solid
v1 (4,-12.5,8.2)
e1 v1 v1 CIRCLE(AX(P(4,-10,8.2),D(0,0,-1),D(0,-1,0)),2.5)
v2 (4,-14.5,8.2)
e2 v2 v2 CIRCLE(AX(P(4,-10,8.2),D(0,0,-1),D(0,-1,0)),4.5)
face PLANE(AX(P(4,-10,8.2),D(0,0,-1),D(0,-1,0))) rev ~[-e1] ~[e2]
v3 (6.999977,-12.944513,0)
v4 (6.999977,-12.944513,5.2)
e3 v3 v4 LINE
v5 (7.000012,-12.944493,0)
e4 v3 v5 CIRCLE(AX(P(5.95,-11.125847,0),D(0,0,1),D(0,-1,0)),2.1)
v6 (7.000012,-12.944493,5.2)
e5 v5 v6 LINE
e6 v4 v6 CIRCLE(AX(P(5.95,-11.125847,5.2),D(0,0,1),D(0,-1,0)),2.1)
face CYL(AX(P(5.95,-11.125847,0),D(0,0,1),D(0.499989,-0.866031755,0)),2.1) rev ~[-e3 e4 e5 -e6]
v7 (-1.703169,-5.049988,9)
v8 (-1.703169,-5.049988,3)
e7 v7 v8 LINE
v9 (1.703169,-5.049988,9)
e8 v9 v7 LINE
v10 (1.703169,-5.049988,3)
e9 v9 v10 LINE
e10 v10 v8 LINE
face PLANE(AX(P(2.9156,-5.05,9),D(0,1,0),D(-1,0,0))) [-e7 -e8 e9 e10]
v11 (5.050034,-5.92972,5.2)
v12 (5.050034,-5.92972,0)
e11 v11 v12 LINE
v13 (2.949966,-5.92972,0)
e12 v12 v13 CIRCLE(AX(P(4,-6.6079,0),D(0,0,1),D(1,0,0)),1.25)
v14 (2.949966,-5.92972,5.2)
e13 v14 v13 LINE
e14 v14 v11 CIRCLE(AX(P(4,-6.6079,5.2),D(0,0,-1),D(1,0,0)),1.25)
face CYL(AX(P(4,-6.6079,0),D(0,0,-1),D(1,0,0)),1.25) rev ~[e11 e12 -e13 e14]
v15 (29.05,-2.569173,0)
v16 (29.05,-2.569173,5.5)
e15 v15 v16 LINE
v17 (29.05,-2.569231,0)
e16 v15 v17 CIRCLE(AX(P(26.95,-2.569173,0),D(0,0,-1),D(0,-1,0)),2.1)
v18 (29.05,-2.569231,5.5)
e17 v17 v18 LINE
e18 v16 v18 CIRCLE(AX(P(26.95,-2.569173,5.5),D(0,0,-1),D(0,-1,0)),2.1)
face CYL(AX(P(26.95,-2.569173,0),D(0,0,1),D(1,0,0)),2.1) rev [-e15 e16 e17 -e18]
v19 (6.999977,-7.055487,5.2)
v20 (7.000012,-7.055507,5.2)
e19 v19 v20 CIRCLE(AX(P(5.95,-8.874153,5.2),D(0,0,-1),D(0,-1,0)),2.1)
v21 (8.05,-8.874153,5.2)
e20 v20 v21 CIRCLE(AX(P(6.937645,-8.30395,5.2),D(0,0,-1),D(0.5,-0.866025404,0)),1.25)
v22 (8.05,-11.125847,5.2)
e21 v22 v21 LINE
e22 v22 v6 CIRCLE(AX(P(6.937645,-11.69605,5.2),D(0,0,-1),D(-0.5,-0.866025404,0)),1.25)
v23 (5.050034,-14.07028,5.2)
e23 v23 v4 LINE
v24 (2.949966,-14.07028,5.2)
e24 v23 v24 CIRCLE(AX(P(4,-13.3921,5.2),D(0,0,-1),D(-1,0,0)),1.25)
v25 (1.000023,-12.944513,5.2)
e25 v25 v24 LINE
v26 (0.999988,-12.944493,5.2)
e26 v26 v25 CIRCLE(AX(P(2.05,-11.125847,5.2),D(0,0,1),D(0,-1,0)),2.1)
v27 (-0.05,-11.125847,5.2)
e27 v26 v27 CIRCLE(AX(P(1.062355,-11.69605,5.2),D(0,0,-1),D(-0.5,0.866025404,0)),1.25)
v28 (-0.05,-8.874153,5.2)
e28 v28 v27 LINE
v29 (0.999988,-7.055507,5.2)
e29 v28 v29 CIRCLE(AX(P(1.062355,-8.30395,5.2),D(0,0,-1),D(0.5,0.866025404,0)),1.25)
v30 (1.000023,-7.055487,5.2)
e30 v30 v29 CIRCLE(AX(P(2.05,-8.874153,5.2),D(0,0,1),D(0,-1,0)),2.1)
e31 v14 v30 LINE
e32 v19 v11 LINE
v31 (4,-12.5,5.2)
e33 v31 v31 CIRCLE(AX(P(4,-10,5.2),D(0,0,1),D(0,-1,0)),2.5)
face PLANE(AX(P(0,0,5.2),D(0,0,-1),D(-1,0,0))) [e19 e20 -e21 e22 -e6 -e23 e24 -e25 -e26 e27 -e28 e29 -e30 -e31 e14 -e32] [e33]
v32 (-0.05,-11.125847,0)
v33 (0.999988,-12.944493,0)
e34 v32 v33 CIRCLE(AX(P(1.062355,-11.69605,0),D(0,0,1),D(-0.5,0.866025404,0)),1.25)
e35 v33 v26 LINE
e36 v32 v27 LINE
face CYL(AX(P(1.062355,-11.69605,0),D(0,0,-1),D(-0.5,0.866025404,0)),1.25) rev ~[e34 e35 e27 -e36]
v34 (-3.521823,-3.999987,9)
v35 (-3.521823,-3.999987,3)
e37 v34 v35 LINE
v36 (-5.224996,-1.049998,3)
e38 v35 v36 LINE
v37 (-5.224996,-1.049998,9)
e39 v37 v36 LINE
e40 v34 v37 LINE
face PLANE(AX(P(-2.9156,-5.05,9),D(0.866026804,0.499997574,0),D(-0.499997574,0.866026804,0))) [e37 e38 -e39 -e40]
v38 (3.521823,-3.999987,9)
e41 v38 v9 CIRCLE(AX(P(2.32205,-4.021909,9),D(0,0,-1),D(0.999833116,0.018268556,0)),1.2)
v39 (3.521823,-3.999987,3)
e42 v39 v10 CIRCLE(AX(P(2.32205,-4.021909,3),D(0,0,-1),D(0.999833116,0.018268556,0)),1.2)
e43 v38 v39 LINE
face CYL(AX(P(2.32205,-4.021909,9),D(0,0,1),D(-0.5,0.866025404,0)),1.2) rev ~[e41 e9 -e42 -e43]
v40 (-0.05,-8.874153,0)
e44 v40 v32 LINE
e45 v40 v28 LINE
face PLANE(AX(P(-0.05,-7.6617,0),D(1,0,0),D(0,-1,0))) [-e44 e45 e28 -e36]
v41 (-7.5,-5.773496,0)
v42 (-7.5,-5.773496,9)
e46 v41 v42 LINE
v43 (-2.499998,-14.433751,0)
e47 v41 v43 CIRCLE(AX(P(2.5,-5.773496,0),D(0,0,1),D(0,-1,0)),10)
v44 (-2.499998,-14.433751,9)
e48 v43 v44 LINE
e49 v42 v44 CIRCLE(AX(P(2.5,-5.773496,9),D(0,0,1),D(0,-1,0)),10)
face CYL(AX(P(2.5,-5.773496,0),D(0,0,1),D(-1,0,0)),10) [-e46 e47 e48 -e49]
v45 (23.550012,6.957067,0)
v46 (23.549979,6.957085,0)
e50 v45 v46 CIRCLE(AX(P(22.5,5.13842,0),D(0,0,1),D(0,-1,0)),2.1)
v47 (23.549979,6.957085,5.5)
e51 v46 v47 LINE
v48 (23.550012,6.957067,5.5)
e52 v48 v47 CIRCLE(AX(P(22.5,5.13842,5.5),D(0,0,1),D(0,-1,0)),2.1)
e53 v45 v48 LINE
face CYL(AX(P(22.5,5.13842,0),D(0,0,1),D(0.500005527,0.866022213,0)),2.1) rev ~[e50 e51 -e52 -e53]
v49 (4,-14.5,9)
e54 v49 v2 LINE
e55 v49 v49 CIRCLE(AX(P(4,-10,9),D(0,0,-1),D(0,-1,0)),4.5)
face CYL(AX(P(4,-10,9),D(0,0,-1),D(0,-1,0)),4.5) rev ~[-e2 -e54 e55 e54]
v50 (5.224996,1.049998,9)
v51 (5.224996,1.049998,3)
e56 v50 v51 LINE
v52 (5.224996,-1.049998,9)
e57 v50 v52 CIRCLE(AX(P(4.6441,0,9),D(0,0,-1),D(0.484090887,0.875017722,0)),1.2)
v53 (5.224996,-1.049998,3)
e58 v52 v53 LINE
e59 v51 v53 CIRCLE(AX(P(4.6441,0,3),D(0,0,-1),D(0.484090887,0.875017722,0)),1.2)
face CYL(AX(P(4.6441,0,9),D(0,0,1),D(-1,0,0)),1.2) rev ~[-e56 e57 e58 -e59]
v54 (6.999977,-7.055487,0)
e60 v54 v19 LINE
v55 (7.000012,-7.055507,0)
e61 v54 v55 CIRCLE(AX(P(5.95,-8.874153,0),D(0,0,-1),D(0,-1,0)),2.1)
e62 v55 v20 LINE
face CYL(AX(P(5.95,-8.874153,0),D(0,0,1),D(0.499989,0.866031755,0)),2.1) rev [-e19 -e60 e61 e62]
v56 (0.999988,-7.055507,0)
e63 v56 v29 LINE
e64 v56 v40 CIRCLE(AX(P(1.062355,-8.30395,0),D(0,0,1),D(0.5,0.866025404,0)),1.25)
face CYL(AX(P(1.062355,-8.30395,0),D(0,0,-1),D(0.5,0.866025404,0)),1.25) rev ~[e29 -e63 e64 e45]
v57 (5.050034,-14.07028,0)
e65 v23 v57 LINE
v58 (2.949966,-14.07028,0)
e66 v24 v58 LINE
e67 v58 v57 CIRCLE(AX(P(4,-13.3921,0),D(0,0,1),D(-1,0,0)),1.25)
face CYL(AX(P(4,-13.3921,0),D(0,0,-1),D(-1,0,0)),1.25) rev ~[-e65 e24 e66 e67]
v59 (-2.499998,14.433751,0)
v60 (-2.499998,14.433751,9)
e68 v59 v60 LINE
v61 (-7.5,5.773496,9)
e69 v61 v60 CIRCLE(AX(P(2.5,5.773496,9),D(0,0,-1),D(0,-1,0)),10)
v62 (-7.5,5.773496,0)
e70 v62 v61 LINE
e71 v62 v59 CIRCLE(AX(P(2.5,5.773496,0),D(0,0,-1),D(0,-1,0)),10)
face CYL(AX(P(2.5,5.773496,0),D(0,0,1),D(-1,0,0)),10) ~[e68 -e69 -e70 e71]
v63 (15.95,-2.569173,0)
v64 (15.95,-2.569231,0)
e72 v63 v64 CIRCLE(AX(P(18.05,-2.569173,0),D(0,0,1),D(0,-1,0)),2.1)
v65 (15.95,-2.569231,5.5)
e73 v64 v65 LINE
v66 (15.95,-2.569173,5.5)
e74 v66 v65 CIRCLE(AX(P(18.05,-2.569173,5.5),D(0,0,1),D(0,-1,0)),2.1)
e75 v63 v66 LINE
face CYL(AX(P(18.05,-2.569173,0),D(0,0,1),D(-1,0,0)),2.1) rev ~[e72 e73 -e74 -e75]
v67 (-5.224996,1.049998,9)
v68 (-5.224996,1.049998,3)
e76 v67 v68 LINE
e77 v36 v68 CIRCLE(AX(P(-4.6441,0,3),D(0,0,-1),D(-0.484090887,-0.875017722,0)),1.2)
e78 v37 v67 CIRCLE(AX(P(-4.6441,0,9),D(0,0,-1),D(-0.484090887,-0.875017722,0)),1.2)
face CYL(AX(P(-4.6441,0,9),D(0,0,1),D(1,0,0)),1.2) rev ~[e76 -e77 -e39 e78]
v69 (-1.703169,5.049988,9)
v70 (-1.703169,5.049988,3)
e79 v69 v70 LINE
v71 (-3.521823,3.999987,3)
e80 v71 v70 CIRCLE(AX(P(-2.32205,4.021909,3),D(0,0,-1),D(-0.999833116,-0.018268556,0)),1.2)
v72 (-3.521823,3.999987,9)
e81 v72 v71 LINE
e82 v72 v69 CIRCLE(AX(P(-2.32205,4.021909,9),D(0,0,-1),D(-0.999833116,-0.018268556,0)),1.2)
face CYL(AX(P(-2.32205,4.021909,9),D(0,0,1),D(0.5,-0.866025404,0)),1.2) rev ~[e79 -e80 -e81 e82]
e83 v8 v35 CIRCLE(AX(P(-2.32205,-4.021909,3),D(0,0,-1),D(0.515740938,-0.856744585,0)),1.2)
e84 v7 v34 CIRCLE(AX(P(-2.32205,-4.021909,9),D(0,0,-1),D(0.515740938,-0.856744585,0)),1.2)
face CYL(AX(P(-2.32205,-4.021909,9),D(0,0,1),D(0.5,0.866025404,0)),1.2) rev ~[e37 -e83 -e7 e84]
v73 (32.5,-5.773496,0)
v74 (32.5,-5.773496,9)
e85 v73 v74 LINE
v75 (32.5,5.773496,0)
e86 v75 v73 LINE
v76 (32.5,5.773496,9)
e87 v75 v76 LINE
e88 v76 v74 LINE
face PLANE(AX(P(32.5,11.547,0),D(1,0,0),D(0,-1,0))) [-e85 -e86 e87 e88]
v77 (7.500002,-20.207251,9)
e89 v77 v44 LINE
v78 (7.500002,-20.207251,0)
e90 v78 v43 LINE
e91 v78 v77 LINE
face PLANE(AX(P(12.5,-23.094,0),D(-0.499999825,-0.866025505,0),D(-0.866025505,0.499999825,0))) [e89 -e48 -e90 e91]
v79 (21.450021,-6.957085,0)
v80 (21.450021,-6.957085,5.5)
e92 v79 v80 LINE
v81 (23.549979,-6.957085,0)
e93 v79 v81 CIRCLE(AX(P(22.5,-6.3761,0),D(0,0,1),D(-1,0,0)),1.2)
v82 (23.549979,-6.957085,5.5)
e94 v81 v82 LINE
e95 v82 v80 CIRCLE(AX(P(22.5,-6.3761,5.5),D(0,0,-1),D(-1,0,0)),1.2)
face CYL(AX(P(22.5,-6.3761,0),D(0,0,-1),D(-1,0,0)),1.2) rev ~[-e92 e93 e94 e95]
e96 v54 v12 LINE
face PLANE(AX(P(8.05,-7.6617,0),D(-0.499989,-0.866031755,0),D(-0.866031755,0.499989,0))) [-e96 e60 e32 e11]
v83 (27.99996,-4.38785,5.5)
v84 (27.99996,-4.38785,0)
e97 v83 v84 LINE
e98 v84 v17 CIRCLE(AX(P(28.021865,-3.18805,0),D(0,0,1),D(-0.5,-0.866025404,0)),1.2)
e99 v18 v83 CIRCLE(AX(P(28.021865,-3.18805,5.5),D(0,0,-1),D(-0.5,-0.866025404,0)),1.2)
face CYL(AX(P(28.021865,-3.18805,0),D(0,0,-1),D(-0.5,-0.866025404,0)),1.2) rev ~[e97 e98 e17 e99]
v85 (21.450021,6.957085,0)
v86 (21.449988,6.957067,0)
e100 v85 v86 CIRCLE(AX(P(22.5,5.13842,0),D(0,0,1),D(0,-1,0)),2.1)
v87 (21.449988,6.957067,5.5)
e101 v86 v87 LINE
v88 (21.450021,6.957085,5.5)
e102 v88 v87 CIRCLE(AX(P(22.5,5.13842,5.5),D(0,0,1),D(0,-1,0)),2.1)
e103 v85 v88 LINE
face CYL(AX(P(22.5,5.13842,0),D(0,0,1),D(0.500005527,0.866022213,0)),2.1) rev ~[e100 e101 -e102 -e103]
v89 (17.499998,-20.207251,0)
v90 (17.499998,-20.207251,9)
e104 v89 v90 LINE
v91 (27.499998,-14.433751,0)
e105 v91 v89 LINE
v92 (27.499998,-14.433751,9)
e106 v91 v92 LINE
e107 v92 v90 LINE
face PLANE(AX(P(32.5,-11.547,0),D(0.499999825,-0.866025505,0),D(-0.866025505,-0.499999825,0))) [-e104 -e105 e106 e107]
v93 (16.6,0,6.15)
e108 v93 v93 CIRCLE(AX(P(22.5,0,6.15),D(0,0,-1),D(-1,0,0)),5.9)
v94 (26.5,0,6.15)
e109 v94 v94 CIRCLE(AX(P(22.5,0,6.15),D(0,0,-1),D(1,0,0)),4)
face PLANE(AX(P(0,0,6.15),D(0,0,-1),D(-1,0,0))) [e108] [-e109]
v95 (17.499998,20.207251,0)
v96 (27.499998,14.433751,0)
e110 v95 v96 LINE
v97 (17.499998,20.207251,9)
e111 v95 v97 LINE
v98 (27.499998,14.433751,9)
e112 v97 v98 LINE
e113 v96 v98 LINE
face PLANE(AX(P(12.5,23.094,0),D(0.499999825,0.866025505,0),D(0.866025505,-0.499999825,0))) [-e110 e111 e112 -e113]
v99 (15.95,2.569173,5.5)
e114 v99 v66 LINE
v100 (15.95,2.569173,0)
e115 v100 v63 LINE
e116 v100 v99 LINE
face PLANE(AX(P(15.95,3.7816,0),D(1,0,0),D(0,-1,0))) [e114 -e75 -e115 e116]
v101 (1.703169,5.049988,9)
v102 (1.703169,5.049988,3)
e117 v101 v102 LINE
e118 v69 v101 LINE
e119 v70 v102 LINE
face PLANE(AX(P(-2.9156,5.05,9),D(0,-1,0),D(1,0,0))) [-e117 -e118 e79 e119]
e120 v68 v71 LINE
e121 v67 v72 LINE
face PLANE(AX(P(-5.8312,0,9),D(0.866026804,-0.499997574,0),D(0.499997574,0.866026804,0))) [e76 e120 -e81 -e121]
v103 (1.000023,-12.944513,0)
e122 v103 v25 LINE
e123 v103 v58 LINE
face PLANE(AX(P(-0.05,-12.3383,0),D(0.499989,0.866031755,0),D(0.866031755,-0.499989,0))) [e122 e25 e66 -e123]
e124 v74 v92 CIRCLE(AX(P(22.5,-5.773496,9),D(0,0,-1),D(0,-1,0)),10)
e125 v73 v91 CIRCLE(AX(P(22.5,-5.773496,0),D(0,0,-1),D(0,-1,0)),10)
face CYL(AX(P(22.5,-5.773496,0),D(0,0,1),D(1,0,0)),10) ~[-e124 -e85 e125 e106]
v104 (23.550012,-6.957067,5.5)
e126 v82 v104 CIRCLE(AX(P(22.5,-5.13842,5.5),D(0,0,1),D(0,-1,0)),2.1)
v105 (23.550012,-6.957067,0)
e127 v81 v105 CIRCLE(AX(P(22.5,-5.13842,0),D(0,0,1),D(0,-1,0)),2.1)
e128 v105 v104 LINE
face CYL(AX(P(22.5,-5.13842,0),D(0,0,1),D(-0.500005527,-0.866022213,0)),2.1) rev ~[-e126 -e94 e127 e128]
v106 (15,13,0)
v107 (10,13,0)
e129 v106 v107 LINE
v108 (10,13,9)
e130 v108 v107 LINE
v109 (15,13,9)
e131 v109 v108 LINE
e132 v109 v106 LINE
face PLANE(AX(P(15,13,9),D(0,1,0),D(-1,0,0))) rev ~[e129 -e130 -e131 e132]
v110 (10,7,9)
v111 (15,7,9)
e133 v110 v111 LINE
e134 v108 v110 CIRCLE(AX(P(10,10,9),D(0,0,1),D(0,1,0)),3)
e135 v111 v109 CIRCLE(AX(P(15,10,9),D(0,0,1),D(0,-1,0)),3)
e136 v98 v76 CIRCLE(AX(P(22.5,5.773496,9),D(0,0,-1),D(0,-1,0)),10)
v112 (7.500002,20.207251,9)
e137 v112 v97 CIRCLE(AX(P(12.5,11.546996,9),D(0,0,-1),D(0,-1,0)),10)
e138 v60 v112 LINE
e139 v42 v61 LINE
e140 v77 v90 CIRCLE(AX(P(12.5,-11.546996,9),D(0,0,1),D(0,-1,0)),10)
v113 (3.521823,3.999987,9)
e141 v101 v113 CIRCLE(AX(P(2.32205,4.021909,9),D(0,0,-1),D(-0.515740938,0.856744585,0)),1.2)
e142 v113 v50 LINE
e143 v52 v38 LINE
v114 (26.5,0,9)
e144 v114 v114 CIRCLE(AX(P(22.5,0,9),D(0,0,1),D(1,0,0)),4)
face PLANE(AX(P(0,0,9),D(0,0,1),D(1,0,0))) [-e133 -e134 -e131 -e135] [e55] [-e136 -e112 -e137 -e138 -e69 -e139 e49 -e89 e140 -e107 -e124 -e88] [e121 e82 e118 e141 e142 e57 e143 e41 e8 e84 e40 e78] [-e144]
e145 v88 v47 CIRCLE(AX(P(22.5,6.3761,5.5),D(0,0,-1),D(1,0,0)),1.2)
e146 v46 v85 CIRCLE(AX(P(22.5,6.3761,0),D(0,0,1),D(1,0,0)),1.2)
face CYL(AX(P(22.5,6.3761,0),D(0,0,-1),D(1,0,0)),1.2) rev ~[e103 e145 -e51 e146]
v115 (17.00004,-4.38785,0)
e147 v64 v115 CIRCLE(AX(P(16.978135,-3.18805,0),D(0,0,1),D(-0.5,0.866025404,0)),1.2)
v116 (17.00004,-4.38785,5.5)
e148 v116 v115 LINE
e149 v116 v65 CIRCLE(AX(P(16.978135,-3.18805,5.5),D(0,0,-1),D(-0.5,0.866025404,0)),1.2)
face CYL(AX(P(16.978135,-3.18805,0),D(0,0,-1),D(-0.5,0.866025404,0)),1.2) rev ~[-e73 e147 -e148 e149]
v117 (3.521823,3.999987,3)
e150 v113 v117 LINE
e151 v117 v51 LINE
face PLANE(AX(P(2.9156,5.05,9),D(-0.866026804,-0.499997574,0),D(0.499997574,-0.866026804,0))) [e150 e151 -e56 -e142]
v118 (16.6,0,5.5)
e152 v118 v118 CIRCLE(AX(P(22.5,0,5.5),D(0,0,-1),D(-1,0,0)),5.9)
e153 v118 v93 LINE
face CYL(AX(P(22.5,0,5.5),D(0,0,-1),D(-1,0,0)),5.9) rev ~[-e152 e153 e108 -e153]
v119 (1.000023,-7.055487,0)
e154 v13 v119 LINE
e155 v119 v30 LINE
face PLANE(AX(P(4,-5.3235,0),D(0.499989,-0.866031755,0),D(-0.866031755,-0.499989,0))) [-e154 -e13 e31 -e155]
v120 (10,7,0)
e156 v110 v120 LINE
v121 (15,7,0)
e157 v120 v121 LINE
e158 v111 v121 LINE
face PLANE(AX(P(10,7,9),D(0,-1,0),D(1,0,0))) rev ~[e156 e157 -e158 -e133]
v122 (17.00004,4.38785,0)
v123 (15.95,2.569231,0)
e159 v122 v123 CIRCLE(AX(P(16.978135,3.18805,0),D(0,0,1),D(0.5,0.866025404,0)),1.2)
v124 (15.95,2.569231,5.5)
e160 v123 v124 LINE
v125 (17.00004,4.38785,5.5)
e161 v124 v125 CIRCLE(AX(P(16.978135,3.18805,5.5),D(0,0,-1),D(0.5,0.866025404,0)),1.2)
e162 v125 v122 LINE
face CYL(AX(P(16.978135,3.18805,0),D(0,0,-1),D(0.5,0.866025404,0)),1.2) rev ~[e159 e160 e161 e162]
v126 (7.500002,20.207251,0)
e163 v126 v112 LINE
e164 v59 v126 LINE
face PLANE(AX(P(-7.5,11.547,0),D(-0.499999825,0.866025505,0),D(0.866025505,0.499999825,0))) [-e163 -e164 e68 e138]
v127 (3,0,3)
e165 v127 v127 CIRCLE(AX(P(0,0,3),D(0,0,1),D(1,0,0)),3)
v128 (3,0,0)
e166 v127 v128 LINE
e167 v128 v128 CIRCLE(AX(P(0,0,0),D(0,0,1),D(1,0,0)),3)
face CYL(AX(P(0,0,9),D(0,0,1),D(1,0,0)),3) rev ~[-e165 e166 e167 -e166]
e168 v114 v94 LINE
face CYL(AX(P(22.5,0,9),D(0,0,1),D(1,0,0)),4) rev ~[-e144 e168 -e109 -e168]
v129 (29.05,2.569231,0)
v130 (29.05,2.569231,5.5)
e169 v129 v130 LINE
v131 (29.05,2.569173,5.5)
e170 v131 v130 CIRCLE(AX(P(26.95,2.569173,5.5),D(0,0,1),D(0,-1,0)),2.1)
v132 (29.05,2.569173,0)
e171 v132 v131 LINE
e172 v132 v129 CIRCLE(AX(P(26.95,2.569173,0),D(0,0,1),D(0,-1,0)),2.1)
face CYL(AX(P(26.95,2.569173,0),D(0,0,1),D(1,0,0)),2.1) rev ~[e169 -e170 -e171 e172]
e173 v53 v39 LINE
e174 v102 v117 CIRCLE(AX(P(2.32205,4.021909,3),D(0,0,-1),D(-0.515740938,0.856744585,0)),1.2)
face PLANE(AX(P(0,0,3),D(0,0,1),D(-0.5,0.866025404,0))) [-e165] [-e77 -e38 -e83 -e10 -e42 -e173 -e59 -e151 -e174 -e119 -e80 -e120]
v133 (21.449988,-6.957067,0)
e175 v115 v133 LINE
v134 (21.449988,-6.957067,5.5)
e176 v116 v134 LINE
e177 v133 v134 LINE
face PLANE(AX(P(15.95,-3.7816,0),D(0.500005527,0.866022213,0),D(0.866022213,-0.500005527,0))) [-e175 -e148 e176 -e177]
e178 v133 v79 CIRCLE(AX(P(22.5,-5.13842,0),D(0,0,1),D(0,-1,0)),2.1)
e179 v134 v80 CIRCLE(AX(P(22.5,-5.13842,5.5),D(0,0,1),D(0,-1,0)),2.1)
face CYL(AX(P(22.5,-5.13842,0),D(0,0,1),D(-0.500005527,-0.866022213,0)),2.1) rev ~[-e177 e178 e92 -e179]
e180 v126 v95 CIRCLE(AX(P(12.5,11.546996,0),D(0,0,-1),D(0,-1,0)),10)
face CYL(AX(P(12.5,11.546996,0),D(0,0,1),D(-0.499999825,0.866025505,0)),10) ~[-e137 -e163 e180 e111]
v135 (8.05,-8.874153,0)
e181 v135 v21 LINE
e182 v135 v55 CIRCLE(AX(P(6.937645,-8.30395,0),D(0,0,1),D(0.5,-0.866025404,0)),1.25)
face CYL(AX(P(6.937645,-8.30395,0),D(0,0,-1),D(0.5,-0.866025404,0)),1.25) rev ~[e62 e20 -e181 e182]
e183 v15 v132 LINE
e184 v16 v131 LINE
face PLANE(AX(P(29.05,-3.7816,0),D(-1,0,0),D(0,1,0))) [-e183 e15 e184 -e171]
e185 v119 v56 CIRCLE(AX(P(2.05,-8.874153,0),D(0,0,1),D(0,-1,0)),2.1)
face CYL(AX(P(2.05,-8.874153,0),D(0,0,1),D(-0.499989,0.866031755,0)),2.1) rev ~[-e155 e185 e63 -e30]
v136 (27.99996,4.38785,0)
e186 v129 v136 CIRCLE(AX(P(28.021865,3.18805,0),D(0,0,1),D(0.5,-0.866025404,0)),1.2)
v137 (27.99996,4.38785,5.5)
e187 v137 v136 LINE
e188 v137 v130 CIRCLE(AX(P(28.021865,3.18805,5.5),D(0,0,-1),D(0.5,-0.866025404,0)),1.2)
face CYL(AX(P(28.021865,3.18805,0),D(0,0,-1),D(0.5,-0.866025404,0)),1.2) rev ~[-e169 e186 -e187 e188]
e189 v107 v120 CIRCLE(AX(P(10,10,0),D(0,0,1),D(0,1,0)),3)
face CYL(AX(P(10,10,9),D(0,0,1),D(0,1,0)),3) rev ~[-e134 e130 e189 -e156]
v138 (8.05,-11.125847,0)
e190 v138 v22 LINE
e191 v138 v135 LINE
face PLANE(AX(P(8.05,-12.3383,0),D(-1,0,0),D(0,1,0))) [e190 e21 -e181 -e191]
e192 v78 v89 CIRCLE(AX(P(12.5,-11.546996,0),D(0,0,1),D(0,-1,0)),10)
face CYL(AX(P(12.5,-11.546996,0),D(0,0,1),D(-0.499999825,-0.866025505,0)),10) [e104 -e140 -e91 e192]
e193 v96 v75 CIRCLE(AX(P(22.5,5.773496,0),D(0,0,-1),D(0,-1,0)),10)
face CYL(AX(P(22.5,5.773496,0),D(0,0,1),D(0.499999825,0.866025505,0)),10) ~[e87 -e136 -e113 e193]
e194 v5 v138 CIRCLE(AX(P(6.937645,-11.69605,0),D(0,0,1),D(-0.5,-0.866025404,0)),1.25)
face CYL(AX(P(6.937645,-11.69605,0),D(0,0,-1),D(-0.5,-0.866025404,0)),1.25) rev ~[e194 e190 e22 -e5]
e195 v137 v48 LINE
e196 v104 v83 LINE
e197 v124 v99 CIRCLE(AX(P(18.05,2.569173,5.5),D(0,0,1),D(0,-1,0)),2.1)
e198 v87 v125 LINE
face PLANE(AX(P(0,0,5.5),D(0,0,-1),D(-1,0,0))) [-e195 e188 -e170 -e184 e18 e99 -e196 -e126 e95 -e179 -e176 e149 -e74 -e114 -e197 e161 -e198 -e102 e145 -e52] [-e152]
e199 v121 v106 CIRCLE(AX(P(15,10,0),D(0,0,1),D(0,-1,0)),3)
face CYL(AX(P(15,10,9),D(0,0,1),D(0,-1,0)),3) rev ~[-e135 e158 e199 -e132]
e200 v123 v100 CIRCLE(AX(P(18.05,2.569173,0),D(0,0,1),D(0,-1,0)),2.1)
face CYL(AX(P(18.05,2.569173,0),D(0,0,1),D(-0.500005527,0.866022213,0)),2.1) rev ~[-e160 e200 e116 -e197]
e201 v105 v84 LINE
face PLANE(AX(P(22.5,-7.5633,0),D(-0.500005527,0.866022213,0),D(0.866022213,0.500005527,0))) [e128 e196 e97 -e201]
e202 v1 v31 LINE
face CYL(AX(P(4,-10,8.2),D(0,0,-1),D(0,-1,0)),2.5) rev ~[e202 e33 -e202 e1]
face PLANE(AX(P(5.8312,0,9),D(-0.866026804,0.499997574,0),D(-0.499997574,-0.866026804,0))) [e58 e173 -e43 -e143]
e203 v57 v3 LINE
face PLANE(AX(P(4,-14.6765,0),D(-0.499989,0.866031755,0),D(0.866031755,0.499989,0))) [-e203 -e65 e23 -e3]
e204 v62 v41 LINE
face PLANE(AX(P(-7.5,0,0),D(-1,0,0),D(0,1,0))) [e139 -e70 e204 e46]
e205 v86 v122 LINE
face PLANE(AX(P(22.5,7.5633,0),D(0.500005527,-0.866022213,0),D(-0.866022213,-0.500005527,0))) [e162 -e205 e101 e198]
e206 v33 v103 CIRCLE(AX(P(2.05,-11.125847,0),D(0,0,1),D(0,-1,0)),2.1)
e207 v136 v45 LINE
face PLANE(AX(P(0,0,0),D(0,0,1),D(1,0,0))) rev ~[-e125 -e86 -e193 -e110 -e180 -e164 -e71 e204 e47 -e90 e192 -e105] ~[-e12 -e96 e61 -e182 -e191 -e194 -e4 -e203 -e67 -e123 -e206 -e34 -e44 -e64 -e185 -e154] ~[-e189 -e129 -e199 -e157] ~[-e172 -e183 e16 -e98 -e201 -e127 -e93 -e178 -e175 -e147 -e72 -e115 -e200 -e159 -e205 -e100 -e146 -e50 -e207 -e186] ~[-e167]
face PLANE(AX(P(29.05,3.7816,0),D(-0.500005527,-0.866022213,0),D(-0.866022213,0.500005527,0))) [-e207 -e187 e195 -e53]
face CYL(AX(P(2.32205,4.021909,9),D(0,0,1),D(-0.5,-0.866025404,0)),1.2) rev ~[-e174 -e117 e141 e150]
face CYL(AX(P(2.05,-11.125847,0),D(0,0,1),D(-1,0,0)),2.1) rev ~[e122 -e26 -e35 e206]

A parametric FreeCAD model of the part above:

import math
import FreeCAD as App
import Part
import Sketcher
from FreeCAD import Vector
Q = App.Units.Quantity


def edges_at(feature, points):
    """Names of the edges that pass closest to the given points."""
    edges = feature.Shape.Edges
    near = lambda p: min(range(len(edges)), key=lambda i: edges[i].distToShape(Part.Vertex(*p))[0])
    return sorted({f"Edge{near(p) + 1}" for p in points})


def add_polygon(sketch, points):
    """Adds a closed chain of lines whose ends are joined by coincident constraints."""
    first, n = sketch.GeometryCount, len(points)
    for a, b in zip(points, points[1:] + points[:1]):
        sketch.addGeometry(Part.LineSegment(App.Vector(*a, 0), App.Vector(*b, 0)), False)
    for i in range(n):
        sketch.addConstraint(Sketcher.Constraint("Coincident", first + i, 2, first + (i + 1) % n, 1))

doc = App.newDocument("Part")
params = doc.addObject("Spreadsheet::Sheet", "Params")
for row, (alias, value) in enumerate([
    ("sketch1_diameter", "15 mm"),
    ("pad1_length", "9 mm"),
    ("sketch2_diameter", "6 mm"),
    ("pocket2_length", "6 mm"),
    ("fillet_radius", "2.1 mm"),
    ("sketch4_diameter", "2.4 mm"),
    ("pocket3_length", "6 mm"),
    ("sketch5_diameter", "15 mm"),
    ("pad2_length", "9 mm"),
    ("fillet2_radius", "10 mm"),
    ("sketch6_diameter", "5 mm"),
    ("hole_diameter", "5 mm"),
    ("hole_cbore_diameter", "9 mm"),
    ("hole_cbore_depth", "0.8 mm"),
    ("sketch7_diameter", "5 mm"),
    ("pocket4_length", "5.2 mm"),
    ("fillet3_radius", "2.1 mm"),
    ("sketch8_diameter", "2.5 mm"),
    ("pocket5_length", "5.2 mm"),
    ("sketch9_diameter", "8 mm"),
    ("sketch10_diameter", "8 mm"),
    ("pocket7_length", "5.5 mm"),
    ("fillet4_radius", "2.1 mm"),
    ("sketch11_diameter", "2.4 mm"),
    ("pocket8_length", "5.5 mm"),
    ("sketch12_diameter", "11.8 mm"),
    ("sketch12_diameter2", "8 mm"),
    ("pocket9_length", "0.65 mm"),
    ("sketch13_radius", "3 mm"),
    ("sketch13_width", "5 mm"),
    ("pocket10_length", "10 mm"),
], start=1):
    params.set(f"A{row}", alias)
    params.set(f"B{row}", "=" + value)
    params.setAlias(f"B{row}", alias)

body = doc.addObject("PartDesign::Body", "Body")

sketch1 = body.newObject("Sketcher::SketchObject", "Sketch")
sketch1.AttachmentSupport = (doc.getObject("XY_Plane"), [""])
sketch1.MapMode = "FlatFace"
sketch1.addGeometry(Part.Circle(Vector(0, 0, 0), Vector(0, 0, 1), 8), False)
sketch1.addConstraint([
    Sketcher.Constraint("Coincident", 0, 3, -1, 1),
    Sketcher.Constraint("Diameter", 0, 15.0),
])
sketch1.setExpression("Constraints[1]", "Params.sketch1_diameter")
pad1 = body.newObject("PartDesign::Pad", "Pad")
pad1.Profile = sketch1
pad1.setExpression("Length", "Params.pad1_length")

sketch2 = body.newObject("Sketcher::SketchObject", "Sketch001")
sketch2.AttachmentSupport = (doc.getObject("XY_Plane"), [""])
sketch2.MapMode = "FlatFace"
sketch2.AttachmentOffset = App.Placement(Vector(0, 0, 9), App.Rotation())
sketch2.addGeometry(Part.Circle(Vector(0, 0, 0), Vector(0, 0, 1), 3), False)
sketch2.addConstraint([
    Sketcher.Constraint("Coincident", 0, 3, -1, 1),
    Sketcher.Constraint("Diameter", 0, 6.0),
])
sketch2.setExpression("Constraints[1]", "Params.sketch2_diameter")
pocket1 = body.newObject("PartDesign::Pocket", "Pocket")
pocket1.Profile = sketch2
pocket1.Type = "ThroughAll"

sketch3 = body.newObject("Sketcher::SketchObject", "Sketch002")
sketch3.AttachmentSupport = (doc.getObject("XY_Plane"), [""])
sketch3.MapMode = "FlatFace"
sketch3.AttachmentOffset = App.Placement(Vector(0, 0, 9), App.Rotation())
add_polygon(sketch3, [(-6, 0), (-3, -5), (3, -5), (6, 0), (3, 5), (-3, 5)])
sketch3.addConstraint([
    Sketcher.Constraint("Horizontal", 1),
    Sketcher.Constraint("Horizontal", 4),
    Sketcher.Constraint("Symmetric", 0, 2, 3, 2, -1, 1),
    Sketcher.Constraint("Symmetric", 2, 2, 5, 2, -1, 1),
    Sketcher.Constraint("PointOnObject", 2, 2, -1),
    Sketcher.Constraint("Parallel", 2, 5),
    Sketcher.Constraint("Vertical", 1, 2, 3, 2),
    Sketcher.Constraint("DistanceY", 1, 2, 3, 2, 10.1),
    Sketcher.Constraint("Angle", 0, Q("-60.0002 deg")),
    Sketcher.Constraint("DistanceX", 1, 1, 1, 2, 5.8312),
])
pocket2 = body.newObject("PartDesign::Pocket", "Pocket001")
pocket2.Profile = sketch3
pocket2.setExpression("Length", "Params.pocket2_length")
doc.recompute()

fillet = body.newObject("PartDesign::Fillet", "Fillet")
fillet.Base = (pocket2, edges_at(pocket2, [
    (5.831, 0, 6),
    (2.916, 5.05, 6),
    (-2.916, 5.05, 6),
    (-5.831, 0, 6),
    (-2.916, -5.05, 6),
    (2.916, -5.05, 6),
]))
fillet.setExpression("Radius", "Params.fillet_radius")

sketch4 = body.newObject("Sketcher::SketchObject", "Sketch003")
sketch4.AttachmentSupport = (doc.getObject("XY_Plane"), [""])
sketch4.MapMode = "FlatFace"
sketch4.AttachmentOffset = App.Placement(Vector(0, 0, 9), App.Rotation())
sketch4.addGeometry(Part.Circle(Vector(-4.6, 0, 0), Vector(0, 0, 1), 1.2), False)
sketch4.addConstraint([
    Sketcher.Constraint("PointOnObject", 0, 3, -1),
    Sketcher.Constraint("Diameter", 0, 2.4),
    Sketcher.Constraint("DistanceX", 0, 3, -1, 1, 4.644),
])
sketch4.setExpression("Constraints[1]", "Params.sketch4_diameter")
pocket3 = body.newObject("PartDesign::Pocket", "Pocket002")
pocket3.Profile = sketch4
pocket3.setExpression("Length", "Params.pocket3_length")
doc.recompute()

polarpattern = body.newObject("PartDesign::PolarPattern", "PolarPattern")
polarpattern.Originals = [pocket3]
polarpattern.Axis = (doc.getObject("Z_Axis"), [""])
polarpattern.Angle = 360
polarpattern.Occurrences = 6
body.Tip = polarpattern

sketch5 = body.newObject("Sketcher::SketchObject", "Sketch004")
sketch5.AttachmentSupport = (doc.getObject("XY_Plane"), [""])
sketch5.MapMode = "FlatFace"
add_polygon(sketch5, [(-8, 12), (-8, 0), (-8, -12), (12, -23), (32, -12), (32, 12), (12, 23)])
sketch5.addGeometry(Part.Circle(Vector(0, 0, 0), Vector(0, 0, 1), 8), False)
sketch5.addConstraint([
    Sketcher.Constraint("Vertical", 0),
    Sketcher.Constraint("Vertical", 1),
    Sketcher.Constraint("Vertical", 4),
    Sketcher.Constraint("Coincident", 7, 3, -1, 1),
    Sketcher.Constraint("Symmetric", 2, 2, 5, 2, -1),
    Sketcher.Constraint("PointOnObject", 0, 2, -1),
    Sketcher.Constraint("Parallel", 2, 5),
    Sketcher.Constraint("Parallel", 3, 6),
    Sketcher.Constraint("Horizontal", 1, 2, 3, 2),
    Sketcher.Constraint("Horizontal", 4, 2, 6, 2),
    Sketcher.Constraint("Diameter", 7, 15.0),
    Sketcher.Constraint("DistanceX", 1, 2, 3, 2, 40.0),
    Sketcher.Constraint("Angle", 2, Q("-30 deg")),
    Sketcher.Constraint("DistanceX", 0, 2, -1, 1, 7.5),
    Sketcher.Constraint("DistanceY", 0, 2, 0, 1, 11.547),
])
sketch5.setExpression("Constraints[17]", "Params.sketch5_diameter")
pad2 = body.newObject("PartDesign::Pad", "Pad001")
pad2.Profile = sketch5
pad2.setExpression("Length", "Params.pad2_length")
doc.recompute()

fillet2 = body.newObject("PartDesign::Fillet", "Fillet001")
fillet2.Base = (pad2, edges_at(pad2, [
    (-7.5, -11.547, 4.5),
    (12.5, -23.094, 4.5),
    (32.5, -11.547, 4.5),
    (-7.5, 11.547, 4.5),
    (12.5, 23.094, 4.5),
    (32.5, 11.547, 4.5),
]))
fillet2.setExpression("Radius", "Params.fillet2_radius")

sketch6 = body.newObject("Sketcher::SketchObject", "Sketch005")
sketch6.AttachmentSupport = (doc.getObject("XY_Plane"), [""])
sketch6.MapMode = "FlatFace"
sketch6.AttachmentOffset = App.Placement(Vector(0, 0, 9), App.Rotation())
sketch6.addGeometry(Part.Circle(Vector(4, -10, 0), Vector(0, 0, 1), 2.5), False)
sketch6.addConstraint([
    Sketcher.Constraint("Diameter", 0, 5.0),
    Sketcher.Constraint("DistanceX", -1, 1, 0, 3, 4.0),
    Sketcher.Constraint("DistanceY", 0, 3, -1, 1, 10.0),
])
sketch6.setExpression("Constraints[0]", "Params.sketch6_diameter")
doc.recompute()
hole = body.newObject("PartDesign::Hole", "Hole")
hole.Profile = sketch6
hole.ThreadType = "None"
hole.setExpression("Diameter", "Params.hole_diameter")
hole.DepthType = "ThroughAll"
hole.HoleCutType = "Counterbore"
hole.setExpression("HoleCutDiameter", "Params.hole_cbore_diameter")
hole.setExpression("HoleCutDepth", "Params.hole_cbore_depth")

sketch7 = body.newObject("Sketcher::SketchObject", "Sketch006")
sketch7.AttachmentSupport = (doc.getObject("XY_Plane"), [""])
sketch7.MapMode = "FlatFace"
add_polygon(sketch7, [(4, -5.3), (8.1, -7.7), (8.1, -12.3), (4, -14.7), (-0.1, -12.3), (-0.1, -7.7)])
sketch7.addGeometry(Part.Circle(Vector(4, -10, 0), Vector(0, 0, 1), 2.5), False)
sketch7.addConstraint([
    Sketcher.Constraint("Vertical", 1),
    Sketcher.Constraint("Vertical", 4),
    Sketcher.Constraint("Parallel", 0, 3),
    Sketcher.Constraint("Parallel", 2, 5),
    Sketcher.Constraint("Horizontal", 1, 2, 3, 2),
    Sketcher.Constraint("Horizontal", 0, 2, 4, 2),
    Sketcher.Constraint("Vertical", 6, 3, 2, 2),
    Sketcher.Constraint("Vertical", 2, 2, 5, 2),
    Sketcher.Constraint("Diameter", 6, 5.0),
    Sketcher.Constraint("DistanceX", 3, 2, 1, 2, 8.1),
    Sketcher.Constraint("Angle", 0, Q("-29.9993 deg")),
    Sketcher.Constraint("DistanceX", -1, 1, 6, 3, 4.0),
    Sketcher.Constraint("DistanceY", 6, 3, -1, 1, 10.0),
    Sketcher.Constraint("DistanceY", 1, 2, 1, 1, 4.6766),
    Sketcher.Constraint("DistanceY", 0, 2, -1, 1, 7.6617),
])
sketch7.setExpression("Constraints[14]", "Params.sketch7_diameter")
pocket4 = body.newObject("PartDesign::Pocket", "Pocket003")
pocket4.Profile = sketch7
pocket4.setExpression("Length", "Params.pocket4_length")
pocket4.Reversed = True
doc.recompute()

fillet3 = body.newObject("PartDesign::Fillet", "Fillet002")
fillet3.Base = (pocket4, edges_at(pocket4, [
    (4, -14.677, 2.6),
    (-0.05, -12.338, 2.6),
    (-0.05, -7.662, 2.6),
    (4, -5.324, 2.6),
    (8.05, -7.662, 2.6),
    (8.05, -12.338, 2.6),
]))
fillet3.setExpression("Radius", "Params.fillet3_radius")

sketch8 = body.newObject("Sketcher::SketchObject", "Sketch007")
sketch8.AttachmentSupport = (doc.getObject("XY_Plane"), [""])
sketch8.MapMode = "FlatFace"
sketch8.addGeometry(Part.Circle(Vector(4, -13.4, 0), Vector(0, 0, 1), 1.2), False)
sketch8.addConstraint([
    Sketcher.Constraint("Diameter", 0, 2.5),
    Sketcher.Constraint("DistanceX", -1, 1, 0, 3, 4.0),
    Sketcher.Constraint("DistanceY", 0, 3, -1, 1, 13.392),
])
sketch8.setExpression("Constraints[0]", "Params.sketch8_diameter")
pocket5 = body.newObject("PartDesign::Pocket", "Pocket004")
pocket5.Profile = sketch8
pocket5.setExpression("Length", "Params.pocket5_length")
pocket5.Reversed = True
doc.recompute()

datumline = body.newObject("PartDesign::Line", "DatumLine")
datumline.Placement = App.Placement(Vector(4, -10, 0), App.Rotation(Vector(0, 0, 1), Vector(0, 0, 1)))
polarpattern2 = body.newObject("PartDesign::PolarPattern", "PolarPattern001")
polarpattern2.Originals = [pocket5]
polarpattern2.Axis = (datumline, [""])
polarpattern2.Angle = 360
polarpattern2.Occurrences = 6
body.Tip = polarpattern2

sketch9 = body.newObject("Sketcher::SketchObject", "Sketch008")
sketch9.AttachmentSupport = (doc.getObject("XY_Plane"), [""])
sketch9.MapMode = "FlatFace"
sketch9.AttachmentOffset = App.Placement(Vector(0, 0, 9), App.Rotation())
sketch9.addGeometry(Part.Circle(Vector(22.5, 0, 0), Vector(0, 0, 1), 4), False)
sketch9.addConstraint([
    Sketcher.Constraint("PointOnObject", 0, 3, -1),
    Sketcher.Constraint("Diameter", 0, 8.0),
    Sketcher.Constraint("DistanceX", -1, 1, 0, 3, 22.5),
])
sketch9.setExpression("Constraints[1]", "Params.sketch9_diameter")
pocket6 = body.newObject("PartDesign::Pocket", "Pocket005")
pocket6.Profile = sketch9
pocket6.Type = "ThroughAll"

sketch10 = body.newObject("Sketcher::SketchObject", "Sketch009")
sketch10.AttachmentSupport = (doc.getObject("XY_Plane"), [""])
sketch10.MapMode = "FlatFace"
add_polygon(sketch10, [(29.1, 3.8), (29.1, -3.8), (22.5, -7.6), (15.9, -3.8), (15.9, 3.8), (22.5, 7.6)])
sketch10.addGeometry(Part.Circle(Vector(22.5, 0, 0), Vector(0, 0, 1), 4), False)
sketch10.addConstraint([
    Sketcher.Constraint("Vertical", 0),
    Sketcher.Constraint("Vertical", 3),
    Sketcher.Constraint("Symmetric", 1, 2, 4, 2, -1),
    Sketcher.Constraint("PointOnObject", 6, 3, -1),
    Sketcher.Constraint("Parallel", 1, 4),
    Sketcher.Constraint("Parallel", 2, 5),
    Sketcher.Constraint("Horizontal", 0, 2, 2, 2),
    Sketcher.Constraint("Horizontal", 3, 2, 5, 2),
    Sketcher.Constraint("Vertical", 6, 3, 1, 2),
    Sketcher.Constraint("Diameter", 6, 8.0),
    Sketcher.Constraint("DistanceX", 2, 2, 0, 2, 13.1),
    Sketcher.Constraint("Angle", 1, Q("-149.9996 deg")),
    Sketcher.Constraint("DistanceX", -1, 1, 6, 3, 22.5),
    Sketcher.Constraint("DistanceY", 0, 2, 0, 1, 7.5632),
])
sketch10.setExpression("Constraints[15]", "Params.sketch10_diameter")
pocket7 = body.newObject("PartDesign::Pocket", "Pocket006")
pocket7.Profile = sketch10
pocket7.setExpression("Length", "Params.pocket7_length")
pocket7.Reversed = True
doc.recompute()

fillet4 = body.newObject("PartDesign::Fillet", "Fillet003")
fillet4.Base = (pocket7, edges_at(pocket7, [
    (22.5, -7.563, 2.75),
    (15.95, -3.782, 2.75),
    (15.95, 3.782, 2.75),
    (22.5, 7.563, 2.75),
    (29.05, 3.782, 2.75),
    (29.05, -3.782, 2.75),
]))
fillet4.setExpression("Radius", "Params.fillet4_radius")

sketch11 = body.newObject("Sketcher::SketchObject", "Sketch010")
sketch11.AttachmentSupport = (doc.getObject("XY_Plane"), [""])
sketch11.MapMode = "FlatFace"
sketch11.addGeometry(Part.Circle(Vector(22.5, -6.4, 0), Vector(0, 0, 1), 1.2), False)
sketch11.addConstraint([
    Sketcher.Constraint("Diameter", 0, 2.4),
    Sketcher.Constraint("DistanceX", -1, 1, 0, 3, 22.5),
    Sketcher.Constraint("DistanceY", 0, 3, -1, 1, 6.376),
])
sketch11.setExpression("Constraints[0]", "Params.sketch11_diameter")
pocket8 = body.newObject("PartDesign::Pocket", "Pocket007")
pocket8.Profile = sketch11
pocket8.setExpression("Length", "Params.pocket8_length")
pocket8.Reversed = True
doc.recompute()

datumline2 = body.newObject("PartDesign::Line", "DatumLine001")
datumline2.Placement = App.Placement(Vector(22.5, 0, 0), App.Rotation(Vector(0, 0, 1), Vector(0, 0, 1)))
polarpattern3 = body.newObject("PartDesign::PolarPattern", "PolarPattern002")
polarpattern3.Originals = [pocket8]
polarpattern3.Axis = (datumline2, [""])
polarpattern3.Angle = 360
polarpattern3.Occurrences = 6
body.Tip = polarpattern3

sketch12 = body.newObject("Sketcher::SketchObject", "Sketch011")
sketch12.AttachmentSupport = (doc.getObject("XY_Plane"), [""])
sketch12.MapMode = "FlatFace"
sketch12.AttachmentOffset = App.Placement(Vector(0, 0, 5.5), App.Rotation())
sketch12.addGeometry([
    Part.Circle(Vector(22.5, 0, 0), Vector(0, 0, 1), 5.9),
    Part.Circle(Vector(22.5, 0, 0), Vector(0, 0, 1), 4),
], False)
sketch12.addConstraint([
    Sketcher.Constraint("Coincident", 1, 3, 0, 3),
    Sketcher.Constraint("PointOnObject", 0, 3, -1),
    Sketcher.Constraint("Diameter", 0, 11.8),
    Sketcher.Constraint("Diameter", 1, 8.0),
    Sketcher.Constraint("DistanceX", -1, 1, 0, 3, 22.5),
])
sketch12.setExpression("Constraints[2]", "Params.sketch12_diameter")
sketch12.setExpression("Constraints[3]", "Params.sketch12_diameter2")
pocket9 = body.newObject("PartDesign::Pocket", "Pocket008")
pocket9.Profile = sketch12
pocket9.setExpression("Length", "Params.pocket9_length")
pocket9.Reversed = True

sketch13 = body.newObject("Sketcher::SketchObject", "Sketch012")
sketch13.AttachmentSupport = (doc.getObject("XY_Plane"), [""])
sketch13.MapMode = "FlatFace"
sketch13.AttachmentOffset = App.Placement(Vector(0, 0, 9), App.Rotation())
sketch13.addGeometry([
    Part.ArcOfCircle(Part.Circle(Vector(15, 10, 0), Vector(0, 0, 1), 3), math.radians(-90), math.radians(90)),
    Part.LineSegment(Vector(15, 13, 0), Vector(10, 13, 0)),
    Part.ArcOfCircle(Part.Circle(Vector(10, 10, 0), Vector(0, 0, 1), 3), math.radians(90), math.radians(270)),
    Part.LineSegment(Vector(10, 7, 0), Vector(15, 7, 0)),
], False)
sketch13.addConstraint([
    Sketcher.Constraint("Tangent", 0, 2, 1, 1),
    Sketcher.Constraint("Tangent", 1, 2, 2, 1),
    Sketcher.Constraint("Tangent", 2, 2, 3, 1),
    Sketcher.Constraint("Tangent", 3, 2, 0, 1),
    Sketcher.Constraint("Horizontal", 1),
    Sketcher.Constraint("Horizontal", 3),
    Sketcher.Constraint("Radius", 0, 3.0),
    Sketcher.Constraint("DistanceX", 1, 2, 1, 1, 5.0),
    Sketcher.Constraint("DistanceY", -1, 1, 0, 3, 10.0),
    Sketcher.Constraint("DistanceX", -1, 1, 2, 3, 10.0),
])
sketch13.setExpression("Constraints[6]", "Params.sketch13_radius")
sketch13.setExpression("Constraints[7]", "Params.sketch13_width")
pocket10 = body.newObject("PartDesign::Pocket", "Pocket009")
pocket10.Profile = sketch13
pocket10.setExpression("Length", "Params.pocket10_length")

doc.recompute()
